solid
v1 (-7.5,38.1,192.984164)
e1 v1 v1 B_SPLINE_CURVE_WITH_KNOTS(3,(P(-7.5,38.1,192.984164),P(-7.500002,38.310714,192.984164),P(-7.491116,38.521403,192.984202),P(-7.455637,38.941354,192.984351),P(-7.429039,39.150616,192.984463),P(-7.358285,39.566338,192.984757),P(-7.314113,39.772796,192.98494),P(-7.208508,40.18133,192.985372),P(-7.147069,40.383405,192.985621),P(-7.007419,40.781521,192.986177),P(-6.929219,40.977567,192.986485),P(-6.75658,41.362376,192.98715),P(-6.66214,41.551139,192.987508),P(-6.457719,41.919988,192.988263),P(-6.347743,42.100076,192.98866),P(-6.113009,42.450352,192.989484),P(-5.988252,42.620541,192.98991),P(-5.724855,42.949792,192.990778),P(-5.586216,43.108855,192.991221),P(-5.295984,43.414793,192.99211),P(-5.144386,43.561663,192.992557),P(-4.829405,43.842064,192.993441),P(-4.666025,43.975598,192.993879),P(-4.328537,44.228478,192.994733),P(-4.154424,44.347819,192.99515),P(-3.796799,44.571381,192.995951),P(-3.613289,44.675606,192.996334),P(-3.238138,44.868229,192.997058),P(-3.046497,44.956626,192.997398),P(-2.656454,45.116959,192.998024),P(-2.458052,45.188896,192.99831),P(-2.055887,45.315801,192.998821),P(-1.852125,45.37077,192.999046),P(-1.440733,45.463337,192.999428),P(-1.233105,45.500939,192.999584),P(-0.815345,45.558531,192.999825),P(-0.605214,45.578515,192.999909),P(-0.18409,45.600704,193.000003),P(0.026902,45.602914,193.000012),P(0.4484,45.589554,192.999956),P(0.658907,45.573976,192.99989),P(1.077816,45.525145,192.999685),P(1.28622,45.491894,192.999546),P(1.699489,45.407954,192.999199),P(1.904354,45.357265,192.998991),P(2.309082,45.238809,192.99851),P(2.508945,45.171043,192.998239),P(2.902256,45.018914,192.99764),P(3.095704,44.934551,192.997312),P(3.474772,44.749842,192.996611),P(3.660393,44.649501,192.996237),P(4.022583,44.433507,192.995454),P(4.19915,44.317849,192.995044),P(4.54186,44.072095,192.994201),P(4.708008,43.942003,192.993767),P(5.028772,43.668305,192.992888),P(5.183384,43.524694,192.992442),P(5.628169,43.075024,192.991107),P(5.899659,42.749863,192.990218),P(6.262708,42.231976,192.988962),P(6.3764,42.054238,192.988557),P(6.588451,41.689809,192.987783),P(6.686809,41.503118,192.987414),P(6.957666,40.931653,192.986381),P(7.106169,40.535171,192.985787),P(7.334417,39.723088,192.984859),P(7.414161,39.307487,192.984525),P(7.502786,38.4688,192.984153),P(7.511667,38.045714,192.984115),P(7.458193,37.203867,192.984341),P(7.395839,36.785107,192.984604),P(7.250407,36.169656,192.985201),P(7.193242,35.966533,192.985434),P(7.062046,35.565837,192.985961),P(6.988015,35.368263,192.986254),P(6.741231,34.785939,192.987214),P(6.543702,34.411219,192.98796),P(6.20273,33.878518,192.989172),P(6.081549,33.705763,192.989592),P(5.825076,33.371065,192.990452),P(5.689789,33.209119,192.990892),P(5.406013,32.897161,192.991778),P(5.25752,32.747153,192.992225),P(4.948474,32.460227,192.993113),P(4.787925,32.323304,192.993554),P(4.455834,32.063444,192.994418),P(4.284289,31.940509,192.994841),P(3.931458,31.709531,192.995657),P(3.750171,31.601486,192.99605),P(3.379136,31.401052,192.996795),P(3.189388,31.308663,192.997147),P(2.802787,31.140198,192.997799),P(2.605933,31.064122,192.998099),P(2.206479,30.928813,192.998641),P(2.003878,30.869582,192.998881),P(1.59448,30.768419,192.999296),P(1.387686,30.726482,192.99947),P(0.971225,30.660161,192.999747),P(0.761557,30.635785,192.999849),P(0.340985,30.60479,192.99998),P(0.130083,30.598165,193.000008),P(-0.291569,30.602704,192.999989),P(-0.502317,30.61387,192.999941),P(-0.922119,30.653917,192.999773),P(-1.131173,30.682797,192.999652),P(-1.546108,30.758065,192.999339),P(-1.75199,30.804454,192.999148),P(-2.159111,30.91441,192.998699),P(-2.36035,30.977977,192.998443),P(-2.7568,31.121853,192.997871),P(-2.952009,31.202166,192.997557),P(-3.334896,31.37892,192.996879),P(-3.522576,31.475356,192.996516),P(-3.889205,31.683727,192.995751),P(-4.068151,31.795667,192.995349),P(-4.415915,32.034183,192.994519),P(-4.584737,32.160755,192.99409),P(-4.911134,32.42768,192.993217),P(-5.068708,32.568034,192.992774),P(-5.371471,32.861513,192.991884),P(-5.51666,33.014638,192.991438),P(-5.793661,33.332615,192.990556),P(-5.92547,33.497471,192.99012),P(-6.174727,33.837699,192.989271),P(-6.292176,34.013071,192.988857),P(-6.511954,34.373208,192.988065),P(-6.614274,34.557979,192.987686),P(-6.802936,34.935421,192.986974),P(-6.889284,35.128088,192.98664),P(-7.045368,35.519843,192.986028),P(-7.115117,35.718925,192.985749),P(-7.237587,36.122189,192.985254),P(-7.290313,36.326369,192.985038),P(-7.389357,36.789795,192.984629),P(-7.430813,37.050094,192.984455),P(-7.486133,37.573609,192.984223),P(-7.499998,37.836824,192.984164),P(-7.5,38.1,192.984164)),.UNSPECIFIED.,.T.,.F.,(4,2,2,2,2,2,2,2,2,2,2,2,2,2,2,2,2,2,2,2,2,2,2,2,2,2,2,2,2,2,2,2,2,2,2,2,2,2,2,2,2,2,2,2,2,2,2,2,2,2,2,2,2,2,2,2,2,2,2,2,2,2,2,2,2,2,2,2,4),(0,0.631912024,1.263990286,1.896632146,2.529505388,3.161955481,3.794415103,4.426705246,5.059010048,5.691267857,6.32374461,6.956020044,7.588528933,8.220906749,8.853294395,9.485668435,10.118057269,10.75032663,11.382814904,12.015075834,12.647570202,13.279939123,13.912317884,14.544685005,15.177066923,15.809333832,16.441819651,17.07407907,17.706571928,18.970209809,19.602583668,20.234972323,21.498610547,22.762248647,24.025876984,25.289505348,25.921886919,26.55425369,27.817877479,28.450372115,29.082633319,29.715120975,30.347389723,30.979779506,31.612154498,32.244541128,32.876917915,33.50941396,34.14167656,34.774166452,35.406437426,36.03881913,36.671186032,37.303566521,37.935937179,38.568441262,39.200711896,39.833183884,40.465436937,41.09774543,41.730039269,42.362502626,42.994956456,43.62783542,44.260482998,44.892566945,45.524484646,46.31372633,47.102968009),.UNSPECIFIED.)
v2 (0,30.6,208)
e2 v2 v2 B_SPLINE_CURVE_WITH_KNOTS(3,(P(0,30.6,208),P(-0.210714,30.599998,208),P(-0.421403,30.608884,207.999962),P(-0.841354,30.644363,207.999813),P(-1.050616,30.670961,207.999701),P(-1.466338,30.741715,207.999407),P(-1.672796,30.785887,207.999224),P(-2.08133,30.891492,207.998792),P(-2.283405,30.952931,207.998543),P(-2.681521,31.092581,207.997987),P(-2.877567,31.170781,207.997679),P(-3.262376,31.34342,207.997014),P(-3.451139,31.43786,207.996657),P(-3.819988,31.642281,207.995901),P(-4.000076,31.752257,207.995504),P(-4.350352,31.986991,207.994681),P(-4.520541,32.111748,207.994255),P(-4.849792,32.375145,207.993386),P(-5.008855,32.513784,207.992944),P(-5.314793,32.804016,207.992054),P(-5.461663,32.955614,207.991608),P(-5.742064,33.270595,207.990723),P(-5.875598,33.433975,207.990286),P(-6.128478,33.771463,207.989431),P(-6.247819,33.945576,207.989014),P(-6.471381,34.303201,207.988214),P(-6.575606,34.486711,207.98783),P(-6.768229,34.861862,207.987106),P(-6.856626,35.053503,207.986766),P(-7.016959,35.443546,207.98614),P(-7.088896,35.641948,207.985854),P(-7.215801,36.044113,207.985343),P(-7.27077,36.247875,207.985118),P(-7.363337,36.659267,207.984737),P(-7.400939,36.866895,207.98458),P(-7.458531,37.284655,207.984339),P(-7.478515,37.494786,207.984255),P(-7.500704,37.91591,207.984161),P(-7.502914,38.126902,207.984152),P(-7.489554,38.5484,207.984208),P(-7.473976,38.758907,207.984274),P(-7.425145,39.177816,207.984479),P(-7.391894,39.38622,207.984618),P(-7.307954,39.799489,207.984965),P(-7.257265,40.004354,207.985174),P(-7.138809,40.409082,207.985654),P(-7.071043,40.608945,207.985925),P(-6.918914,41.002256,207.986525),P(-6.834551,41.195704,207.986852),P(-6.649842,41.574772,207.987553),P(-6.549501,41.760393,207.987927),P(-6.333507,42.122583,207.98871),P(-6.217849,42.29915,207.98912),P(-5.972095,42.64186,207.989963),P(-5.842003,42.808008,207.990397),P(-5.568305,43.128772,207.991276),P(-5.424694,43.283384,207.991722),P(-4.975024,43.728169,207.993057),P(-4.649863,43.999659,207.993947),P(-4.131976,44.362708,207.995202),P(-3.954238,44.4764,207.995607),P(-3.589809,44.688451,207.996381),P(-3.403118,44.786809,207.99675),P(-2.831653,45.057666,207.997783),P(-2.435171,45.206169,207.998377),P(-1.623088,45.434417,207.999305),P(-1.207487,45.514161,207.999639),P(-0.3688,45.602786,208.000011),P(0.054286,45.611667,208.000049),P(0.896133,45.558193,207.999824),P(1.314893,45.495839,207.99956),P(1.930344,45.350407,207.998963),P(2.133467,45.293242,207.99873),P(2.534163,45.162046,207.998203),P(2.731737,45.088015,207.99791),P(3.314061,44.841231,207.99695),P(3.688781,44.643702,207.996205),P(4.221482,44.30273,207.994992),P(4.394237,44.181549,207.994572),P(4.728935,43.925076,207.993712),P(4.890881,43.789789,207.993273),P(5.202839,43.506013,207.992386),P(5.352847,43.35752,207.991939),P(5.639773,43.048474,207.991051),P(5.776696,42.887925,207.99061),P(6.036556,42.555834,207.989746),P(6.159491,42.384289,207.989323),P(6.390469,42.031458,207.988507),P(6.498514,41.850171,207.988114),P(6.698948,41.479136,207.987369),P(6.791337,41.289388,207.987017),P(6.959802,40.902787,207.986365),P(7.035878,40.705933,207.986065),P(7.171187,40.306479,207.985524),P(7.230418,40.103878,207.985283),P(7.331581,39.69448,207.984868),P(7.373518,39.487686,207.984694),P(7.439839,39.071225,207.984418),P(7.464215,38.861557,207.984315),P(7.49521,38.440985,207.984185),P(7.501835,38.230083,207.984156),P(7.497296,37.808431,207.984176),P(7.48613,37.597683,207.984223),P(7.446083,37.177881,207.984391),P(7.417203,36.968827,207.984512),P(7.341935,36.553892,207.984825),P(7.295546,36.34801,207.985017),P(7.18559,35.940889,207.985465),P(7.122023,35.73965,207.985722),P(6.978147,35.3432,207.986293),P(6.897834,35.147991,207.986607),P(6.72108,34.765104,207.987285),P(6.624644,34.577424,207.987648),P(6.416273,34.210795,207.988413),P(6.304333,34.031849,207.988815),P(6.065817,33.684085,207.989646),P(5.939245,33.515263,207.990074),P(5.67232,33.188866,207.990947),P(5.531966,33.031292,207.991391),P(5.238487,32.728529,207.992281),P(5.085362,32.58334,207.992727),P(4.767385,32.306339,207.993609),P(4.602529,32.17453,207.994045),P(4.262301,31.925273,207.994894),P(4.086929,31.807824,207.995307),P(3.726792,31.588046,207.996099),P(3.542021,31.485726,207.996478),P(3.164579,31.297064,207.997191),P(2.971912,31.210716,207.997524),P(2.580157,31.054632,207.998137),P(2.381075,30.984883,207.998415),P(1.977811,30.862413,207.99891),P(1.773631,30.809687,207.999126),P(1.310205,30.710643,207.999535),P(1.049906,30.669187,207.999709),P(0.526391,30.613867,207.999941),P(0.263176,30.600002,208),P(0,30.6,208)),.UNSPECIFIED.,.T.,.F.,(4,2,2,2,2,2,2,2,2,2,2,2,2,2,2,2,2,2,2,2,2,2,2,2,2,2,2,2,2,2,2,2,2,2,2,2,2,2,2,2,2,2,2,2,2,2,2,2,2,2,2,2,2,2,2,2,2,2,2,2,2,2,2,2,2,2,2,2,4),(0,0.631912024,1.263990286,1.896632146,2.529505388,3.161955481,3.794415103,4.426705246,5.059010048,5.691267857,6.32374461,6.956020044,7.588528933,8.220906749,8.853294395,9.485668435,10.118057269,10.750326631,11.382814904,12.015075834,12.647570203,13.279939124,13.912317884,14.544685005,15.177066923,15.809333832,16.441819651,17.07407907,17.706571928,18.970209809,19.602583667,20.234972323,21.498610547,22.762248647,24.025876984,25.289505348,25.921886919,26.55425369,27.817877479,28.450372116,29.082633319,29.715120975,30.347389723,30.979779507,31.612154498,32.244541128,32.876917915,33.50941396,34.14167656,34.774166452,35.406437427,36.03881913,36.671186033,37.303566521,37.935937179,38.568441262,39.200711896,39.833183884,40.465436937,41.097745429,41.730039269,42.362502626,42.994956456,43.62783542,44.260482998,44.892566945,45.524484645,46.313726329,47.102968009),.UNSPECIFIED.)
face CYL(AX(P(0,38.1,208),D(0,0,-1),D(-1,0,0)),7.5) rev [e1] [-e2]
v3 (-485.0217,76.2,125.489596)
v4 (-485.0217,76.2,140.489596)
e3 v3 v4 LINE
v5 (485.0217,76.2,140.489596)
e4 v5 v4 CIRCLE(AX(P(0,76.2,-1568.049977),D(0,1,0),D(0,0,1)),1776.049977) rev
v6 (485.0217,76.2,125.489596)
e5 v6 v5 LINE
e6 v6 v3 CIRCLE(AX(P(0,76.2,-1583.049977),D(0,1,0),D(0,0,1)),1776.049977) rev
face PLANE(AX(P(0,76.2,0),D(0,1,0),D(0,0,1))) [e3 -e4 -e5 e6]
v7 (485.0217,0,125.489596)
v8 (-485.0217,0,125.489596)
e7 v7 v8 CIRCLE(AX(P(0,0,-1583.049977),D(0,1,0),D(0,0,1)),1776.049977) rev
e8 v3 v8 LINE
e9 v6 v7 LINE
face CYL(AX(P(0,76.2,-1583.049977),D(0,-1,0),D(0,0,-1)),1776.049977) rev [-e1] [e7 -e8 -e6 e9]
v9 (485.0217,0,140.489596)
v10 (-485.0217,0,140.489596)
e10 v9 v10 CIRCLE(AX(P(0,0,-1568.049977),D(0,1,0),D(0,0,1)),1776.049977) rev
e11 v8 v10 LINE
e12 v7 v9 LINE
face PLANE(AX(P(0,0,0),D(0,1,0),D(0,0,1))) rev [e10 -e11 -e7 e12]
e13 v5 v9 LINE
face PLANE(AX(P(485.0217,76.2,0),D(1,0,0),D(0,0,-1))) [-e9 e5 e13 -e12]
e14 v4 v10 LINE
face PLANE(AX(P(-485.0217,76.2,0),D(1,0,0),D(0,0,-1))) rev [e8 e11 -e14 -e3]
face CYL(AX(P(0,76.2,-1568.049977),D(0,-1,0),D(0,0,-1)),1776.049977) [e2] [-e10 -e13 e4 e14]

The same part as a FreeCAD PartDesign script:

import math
import FreeCAD as App
import Part
import Sketcher
from FreeCAD import Vector
Q = App.Units.Quantity

doc = App.newDocument("Part")
body = doc.addObject("PartDesign::Body", "Body")

sketch1 = doc.addObject("Sketcher::SketchObject", "Sketch")
body.addObject(sketch1)
sketch1.AttachmentSupport = (doc.XZ_Plane, [""])
sketch1.MapMode = "FlatFace"
sketch1.addGeometry([
    Part.ArcOfCircle(Part.Circle(Vector(0, -1583, 0), Vector(0, 0, 1), 1776), math.radians(74), math.radians(106)),
    Part.LineSegment(Vector(-485, 125, 0), Vector(-485, 140, 0)),
    Part.ArcOfCircle(Part.Circle(Vector(0, -1568, 0), Vector(0, 0, 1), 1776), math.radians(74), math.radians(106)),
    Part.LineSegment(Vector(485, 140, 0), Vector(485, 125, 0)),
], False)
sketch1.addConstraint([
    Sketcher.Constraint("Coincident", 0, 2, 1, 1),
    Sketcher.Constraint("Coincident", 1, 2, 2, 2),
    Sketcher.Constraint("Coincident", 2, 1, 3, 1),
    Sketcher.Constraint("Coincident", 3, 2, 0, 1),
    Sketcher.Constraint("Vertical", 1),
    Sketcher.Constraint("Vertical", 3),
    Sketcher.Constraint("Equal", 0, 2),
    Sketcher.Constraint("PointOnObject", 0, 3, -2),
    Sketcher.Constraint("PointOnObject", 2, 3, -2),
    Sketcher.Constraint("DistanceY", 1, 1, 1, 2, Q("15 mm")),
    Sketcher.Constraint("DistanceY", 3, 2, 1, 2, Q("15 mm")),
    Sketcher.Constraint("Radius", 0, Q("1776.049977 mm")),
    Sketcher.Constraint("DistanceX", 1, 2, -1, 1, Q("485.0217 mm")),
    Sketcher.Constraint("DistanceY", 0, 3, -1, 1, Q("1583.049977 mm")),
])
pad1 = doc.addObject("PartDesign::Pad", "Pad")
body.addObject(pad1)
pad1.Profile = sketch1
pad1.Length = 76.2
pad1.Reversed = True

sketch2 = doc.addObject("Sketcher::SketchObject", "Sketch001")
body.addObject(sketch2)
sketch2.AttachmentSupport = (doc.XY_Plane, [""])
sketch2.MapMode = "FlatFace"
sketch2.addGeometry(Part.Circle(Vector(0, 38, 0), Vector(0, 0, 1), 8), False)
sketch2.addConstraint([
    Sketcher.Constraint("PointOnObject", 0, 3, -2),
    Sketcher.Constraint("Diameter", 0, Q("15 mm")),
    Sketcher.Constraint("DistanceY", -1, 1, 0, 3, Q("38.1 mm")),
])
pocket1 = doc.addObject("PartDesign::Pocket", "Pocket")
body.addObject(pocket1)
pocket1.Profile = sketch2
pocket1.Type = "ThroughAll"
pocket1.Reversed = True

doc.recompute()
